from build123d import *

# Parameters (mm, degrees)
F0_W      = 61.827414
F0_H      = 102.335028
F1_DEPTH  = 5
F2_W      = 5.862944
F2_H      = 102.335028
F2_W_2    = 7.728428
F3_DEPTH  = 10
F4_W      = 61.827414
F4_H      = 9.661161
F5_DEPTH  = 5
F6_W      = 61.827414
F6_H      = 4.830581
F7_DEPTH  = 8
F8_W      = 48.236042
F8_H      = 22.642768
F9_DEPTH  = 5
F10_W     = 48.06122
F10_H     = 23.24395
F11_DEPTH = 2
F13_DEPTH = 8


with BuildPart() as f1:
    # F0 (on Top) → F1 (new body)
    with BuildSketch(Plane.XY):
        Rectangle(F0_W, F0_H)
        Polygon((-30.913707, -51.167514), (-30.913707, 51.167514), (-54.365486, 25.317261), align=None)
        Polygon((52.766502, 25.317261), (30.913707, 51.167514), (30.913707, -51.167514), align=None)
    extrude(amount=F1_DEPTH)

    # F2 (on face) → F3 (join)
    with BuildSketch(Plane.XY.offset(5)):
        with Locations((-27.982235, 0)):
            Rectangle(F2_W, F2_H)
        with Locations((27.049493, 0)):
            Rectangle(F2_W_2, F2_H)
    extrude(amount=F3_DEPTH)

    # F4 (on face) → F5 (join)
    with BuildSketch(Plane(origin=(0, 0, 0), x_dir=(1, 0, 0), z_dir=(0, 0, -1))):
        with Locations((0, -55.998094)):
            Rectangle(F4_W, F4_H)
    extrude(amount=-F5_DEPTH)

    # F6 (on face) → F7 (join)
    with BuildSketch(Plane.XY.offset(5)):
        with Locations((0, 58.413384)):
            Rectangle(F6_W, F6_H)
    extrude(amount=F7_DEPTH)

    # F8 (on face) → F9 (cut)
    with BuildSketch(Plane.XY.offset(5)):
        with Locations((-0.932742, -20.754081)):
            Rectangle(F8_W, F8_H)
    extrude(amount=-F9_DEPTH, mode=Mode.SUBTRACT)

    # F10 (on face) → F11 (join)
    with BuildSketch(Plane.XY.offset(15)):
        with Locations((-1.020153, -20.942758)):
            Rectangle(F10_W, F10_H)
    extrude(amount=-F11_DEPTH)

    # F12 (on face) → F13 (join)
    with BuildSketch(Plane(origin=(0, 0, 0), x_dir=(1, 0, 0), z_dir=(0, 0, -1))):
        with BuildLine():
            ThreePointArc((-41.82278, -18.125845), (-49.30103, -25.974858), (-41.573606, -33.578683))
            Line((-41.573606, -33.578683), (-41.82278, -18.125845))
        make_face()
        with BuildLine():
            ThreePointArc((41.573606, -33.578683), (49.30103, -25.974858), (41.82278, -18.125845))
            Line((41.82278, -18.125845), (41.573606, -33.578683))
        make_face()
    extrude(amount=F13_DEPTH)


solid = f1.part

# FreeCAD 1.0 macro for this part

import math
import FreeCAD as App
import Part
import Sketcher

V = App.Vector
Q = App.Units.Quantity

doc = App.newDocument("Part")
body = doc.addObject("PartDesign::Body", "Body")

sketch1 = body.newObject("Sketcher::SketchObject", "Sketch")
sketch1.AttachmentSupport = (doc.getObject("XY_Plane"), [""])
sketch1.MapMode = "FlatFace"
sketch1.addGeometry(Part.LineSegment(V(-31, -51, 0), V(31, -51, 0)), False)
sketch1.addGeometry(Part.LineSegment(V(31, -51, 0), V(53, 25, 0)), False)
sketch1.addGeometry(Part.LineSegment(V(53, 25, 0), V(31, 51, 0)), False)
sketch1.addGeometry(Part.LineSegment(V(31, 51, 0), V(-31, 51, 0)), False)
sketch1.addGeometry(Part.LineSegment(V(-31, 51, 0), V(-54, 25, 0)), False)
sketch1.addGeometry(Part.LineSegment(V(-54, 25, 0), V(-31, -51, 0)), False)
sketch1.addConstraint(Sketcher.Constraint("Coincident", 0, 2, 1, 1))
sketch1.addConstraint(Sketcher.Constraint("Coincident", 1, 2, 2, 1))
sketch1.addConstraint(Sketcher.Constraint("Coincident", 2, 2, 3, 1))
sketch1.addConstraint(Sketcher.Constraint("Coincident", 3, 2, 4, 1))
sketch1.addConstraint(Sketcher.Constraint("Coincident", 4, 2, 5, 1))
sketch1.addConstraint(Sketcher.Constraint("Coincident", 5, 2, 0, 1))
sketch1.addConstraint(Sketcher.Constraint("Horizontal", 0))
sketch1.addConstraint(Sketcher.Constraint("Horizontal", 3))
sketch1.addConstraint(Sketcher.Constraint("Symmetric", 0, 2, 3, 2, -1, 1))
sketch1.addConstraint(Sketcher.Constraint("Horizontal", 1, 2, 4, 2))
sketch1.addConstraint(Sketcher.Constraint("Vertical", 0, 2, 2, 2))
sketch1.addConstraint(Sketcher.Constraint("Vertical", 3, 2, 5, 2))
sketch1.addConstraint(Sketcher.Constraint("Distance", 4, Q("34.90303 mm")))
sketch1.addConstraint(Sketcher.Constraint("DistanceX", 0, 1, 0, 2, Q("61.827414 mm")))
sketch1.addConstraint(Sketcher.Constraint("DistanceY", -1, 1, 1, 2, Q("25.317261 mm")))
sketch1.addConstraint(Sketcher.Constraint("DistanceX", 3, 2, 1, 2, Q("83.680209 mm")))
sketch1.addConstraint(Sketcher.Constraint("DistanceX", 4, 2, 3, 2, Q("23.451779 mm")))
pad1 = body.newObject("PartDesign::Pad", "Pad")
pad1.Profile = sketch1
pad1.Length = 5

sketch2 = body.newObject("Sketcher::SketchObject", "Sketch001")
sketch2.AttachmentSupport = (doc.getObject("XY_Plane"), [""])
sketch2.MapMode = "FlatFace"
sketch2.AttachmentOffset = App.Placement(V(0, 0, 5), App.Rotation())
sketch2.addGeometry(Part.LineSegment(V(-31, 51, 0), V(-31, -51, 0)), False)
sketch2.addGeometry(Part.LineSegment(V(-31, -51, 0), V(-25, -51, 0)), False)
sketch2.addGeometry(Part.LineSegment(V(-25, -51, 0), V(-25, 51, 0)), False)
sketch2.addGeometry(Part.LineSegment(V(-25, 51, 0), V(-31, 51, 0)), False)
sketch2.addGeometry(Part.LineSegment(V(23, 51, 0), V(23, -51, 0)), False)
sketch2.addGeometry(Part.LineSegment(V(23, -51, 0), V(31, -51, 0)), False)
sketch2.addGeometry(Part.LineSegment(V(31, -51, 0), V(31, 51, 0)), False)
sketch2.addGeometry(Part.LineSegment(V(31, 51, 0), V(23, 51, 0)), False)
sketch2.addConstraint(Sketcher.Constraint("Coincident", 0, 2, 1, 1))
sketch2.addConstraint(Sketcher.Constraint("Coincident", 1, 2, 2, 1))
sketch2.addConstraint(Sketcher.Constraint("Coincident", 2, 2, 3, 1))
sketch2.addConstraint(Sketcher.Constraint("Coincident", 3, 2, 0, 1))
sketch2.addConstraint(Sketcher.Constraint("Coincident", 4, 2, 5, 1))
sketch2.addConstraint(Sketcher.Constraint("Coincident", 5, 2, 6, 1))
sketch2.addConstraint(Sketcher.Constraint("Coincident", 6, 2, 7, 1))
sketch2.addConstraint(Sketcher.Constraint("Coincident", 7, 2, 4, 1))
sketch2.addConstraint(Sketcher.Constraint("Vertical", 0))
sketch2.addConstraint(Sketcher.Constraint("Horizontal", 1))
sketch2.addConstraint(Sketcher.Constraint("Vertical", 2))
sketch2.addConstraint(Sketcher.Constraint("Horizontal", 3))
sketch2.addConstraint(Sketcher.Constraint("Vertical", 4))
sketch2.addConstraint(Sketcher.Constraint("Horizontal", 5))
sketch2.addConstraint(Sketcher.Constraint("Vertical", 6))
sketch2.addConstraint(Sketcher.Constraint("Horizontal", 7))
sketch2.addConstraint(Sketcher.Constraint("Symmetric", 3, 2, 5, 2, -1, 1))
sketch2.addConstraint(Sketcher.Constraint("Horizontal", 1, 2, 4, 2))
sketch2.addConstraint(Sketcher.Constraint("Horizontal", 3, 2, 6, 2))
sketch2.addConstraint(Sketcher.Constraint("DistanceX", 1, 1, 1, 2, Q("5.862944 mm")))
sketch2.addConstraint(Sketcher.Constraint("DistanceX", 5, 1, 5, 2, Q("7.728428 mm")))
sketch2.addConstraint(Sketcher.Constraint("DistanceY", 0, 2, 0, 1, Q("102.335028 mm")))
sketch2.addConstraint(Sketcher.Constraint("DistanceX", -1, 1, 4, 2, Q("23.185279 mm")))
pad2 = body.newObject("PartDesign::Pad", "Pad001")
pad2.Profile = sketch2
pad2.Length = 10

sketch3 = body.newObject("Sketcher::SketchObject", "Sketch002")
sketch3.AttachmentSupport = (doc.getObject("XY_Plane"), [""])
sketch3.MapMode = "FlatFace"
sketch3.addGeometry(Part.LineSegment(V(-31, 51, 0), V(-31, 61, 0)), False)
sketch3.addGeometry(Part.LineSegment(V(-31, 61, 0), V(31, 61, 0)), False)
sketch3.addGeometry(Part.LineSegment(V(31, 61, 0), V(31, 51, 0)), False)
sketch3.addGeometry(Part.LineSegment(V(31, 51, 0), V(-31, 51, 0)), False)
sketch3.addConstraint(Sketcher.Constraint("Coincident", 0, 2, 1, 1))
sketch3.addConstraint(Sketcher.Constraint("Coincident", 1, 2, 2, 1))
sketch3.addConstraint(Sketcher.Constraint("Coincident", 2, 2, 3, 1))
sketch3.addConstraint(Sketcher.Constraint("Coincident", 3, 2, 0, 1))
sketch3.addConstraint(Sketcher.Constraint("Vertical", 0))
sketch3.addConstraint(Sketcher.Constraint("Horizontal", 1))
sketch3.addConstraint(Sketcher.Constraint("Vertical", 2))
sketch3.addConstraint(Sketcher.Constraint("Horizontal", 3))
sketch3.addConstraint(Sketcher.Constraint("DistanceY", 0, 1, 0, 2, Q("9.661161 mm")))
sketch3.addConstraint(Sketcher.Constraint("DistanceX", 1, 1, 1, 2, Q("61.827414 mm")))
sketch3.addConstraint(Sketcher.Constraint("DistanceX", 0, 2, -1, 1, Q("30.913707 mm")))
sketch3.addConstraint(Sketcher.Constraint("DistanceY", -1, 1, 0, 2, Q("60.828674 mm")))
pad3 = body.newObject("PartDesign::Pad", "Pad002")
pad3.Profile = sketch3
pad3.Length = 5

sketch4 = body.newObject("Sketcher::SketchObject", "Sketch003")
sketch4.AttachmentSupport = (doc.getObject("XY_Plane"), [""])
sketch4.MapMode = "FlatFace"
sketch4.AttachmentOffset = App.Placement(V(0, 0, 5), App.Rotation())
sketch4.addGeometry(Part.LineSegment(V(-30.9, 60.8, 0), V(-30.9, 56, 0)), False)
sketch4.addGeometry(Part.LineSegment(V(-30.9, 56, 0), V(30.9, 56, 0)), False)
sketch4.addGeometry(Part.LineSegment(V(30.9, 56, 0), V(30.9, 60.8, 0)), False)
sketch4.addGeometry(Part.LineSegment(V(30.9, 60.8, 0), V(-30.9, 60.8, 0)), False)
sketch4.addConstraint(Sketcher.Constraint("Coincident", 0, 2, 1, 1))
sketch4.addConstraint(Sketcher.Constraint("Coincident", 1, 2, 2, 1))
sketch4.addConstraint(Sketcher.Constraint("Coincident", 2, 2, 3, 1))
sketch4.addConstraint(Sketcher.Constraint("Coincident", 3, 2, 0, 1))
sketch4.addConstraint(Sketcher.Constraint("Vertical", 0))
sketch4.addConstraint(Sketcher.Constraint("Horizontal", 1))
sketch4.addConstraint(Sketcher.Constraint("Vertical", 2))
sketch4.addConstraint(Sketcher.Constraint("Horizontal", 3))
sketch4.addConstraint(Sketcher.Constraint("DistanceY", 0, 2, 0, 1, Q("4.830581 mm")))
sketch4.addConstraint(Sketcher.Constraint("DistanceX", 1, 1, 1, 2, Q("61.827414 mm")))
sketch4.addConstraint(Sketcher.Constraint("DistanceX", 0, 2, -1, 1, Q("30.913707 mm")))
sketch4.addConstraint(Sketcher.Constraint("DistanceY", -1, 1, 0, 2, Q("55.998094 mm")))
pad4 = body.newObject("PartDesign::Pad", "Pad003")
pad4.Profile = sketch4
pad4.Length = 8

sketch5 = body.newObject("Sketcher::SketchObject", "Sketch004")
sketch5.AttachmentSupport = (doc.getObject("XY_Plane"), [""])
sketch5.MapMode = "FlatFace"
sketch5.AttachmentOffset = App.Placement(V(0, 0, 5), App.Rotation())
sketch5.addGeometry(Part.LineSegment(V(-25, -9, 0), V(-25, -32, 0)), False)
sketch5.addGeometry(Part.LineSegment(V(-25, -32, 0), V(23, -32, 0)), False)
sketch5.addGeometry(Part.LineSegment(V(23, -32, 0), V(23, -9, 0)), False)
sketch5.addGeometry(Part.LineSegment(V(23, -9, 0), V(-25, -9, 0)), False)
sketch5.addConstraint(Sketcher.Constraint("Coincident", 0, 2, 1, 1))
sketch5.addConstraint(Sketcher.Constraint("Coincident", 1, 2, 2, 1))
sketch5.addConstraint(Sketcher.Constraint("Coincident", 2, 2, 3, 1))
sketch5.addConstraint(Sketcher.Constraint("Coincident", 3, 2, 0, 1))
sketch5.addConstraint(Sketcher.Constraint("Vertical", 0))
sketch5.addConstraint(Sketcher.Constraint("Horizontal", 1))
sketch5.addConstraint(Sketcher.Constraint("Vertical", 2))
sketch5.addConstraint(Sketcher.Constraint("Horizontal", 3))
sketch5.addConstraint(Sketcher.Constraint("DistanceX", 1, 1, 1, 2, Q("48.236042 mm")))
sketch5.addConstraint(Sketcher.Constraint("DistanceY", 0, 2, 0, 1, Q("22.642768 mm")))
sketch5.addConstraint(Sketcher.Constraint("DistanceX", -1, 1, 1, 2, Q("23.185279 mm")))
sketch5.addConstraint(Sketcher.Constraint("DistanceY", 0, 2, -1, 1, Q("32.075465 mm")))
pocket1 = body.newObject("PartDesign::Pocket", "Pocket")
pocket1.Profile = sketch5
pocket1.Length = 5

sketch6 = body.newObject("Sketcher::SketchObject", "Sketch005")
sketch6.AttachmentSupport = (doc.getObject("XY_Plane"), [""])
sketch6.MapMode = "FlatFace"
sketch6.AttachmentOffset = App.Placement(V(0, 0, 15), App.Rotation())
sketch6.addGeometry(Part.LineSegment(V(-25, -9, 0), V(-25, -33, 0)), False)
sketch6.addGeometry(Part.LineSegment(V(-25, -33, 0), V(23, -33, 0)), False)
sketch6.addGeometry(Part.LineSegment(V(23, -33, 0), V(23, -9, 0)), False)
sketch6.addGeometry(Part.LineSegment(V(23, -9, 0), V(-25, -9, 0)), False)
sketch6.addConstraint(Sketcher.Constraint("Coincident", 0, 2, 1, 1))
sketch6.addConstraint(Sketcher.Constraint("Coincident", 1, 2, 2, 1))
sketch6.addConstraint(Sketcher.Constraint("Coincident", 2, 2, 3, 1))
sketch6.addConstraint(Sketcher.Constraint("Coincident", 3, 2, 0, 1))
sketch6.addConstraint(Sketcher.Constraint("Vertical", 0))
sketch6.addConstraint(Sketcher.Constraint("Horizontal", 1))
sketch6.addConstraint(Sketcher.Constraint("Vertical", 2))
sketch6.addConstraint(Sketcher.Constraint("Horizontal", 3))
sketch6.addConstraint(Sketcher.Constraint("DistanceX", 1, 1, 1, 2, Q("48.06122 mm")))
sketch6.addConstraint(Sketcher.Constraint("DistanceY", 0, 2, 0, 1, Q("23.24395 mm")))
sketch6.addConstraint(Sketcher.Constraint("DistanceX", 0, 2, -1, 1, Q("25.050763 mm")))
sketch6.addConstraint(Sketcher.Constraint("DistanceY", 0, 2, -1, 1, Q("32.564733 mm")))
pad5 = body.newObject("PartDesign::Pad", "Pad004")
pad5.Profile = sketch6
pad5.Length = 2
pad5.Reversed = True

sketch7 = body.newObject("Sketcher::SketchObject", "Sketch006")
sketch7.AttachmentSupport = (doc.getObject("XY_Plane"), [""])
sketch7.MapMode = "FlatFace"
sketch7.addGeometry(Part.ArcOfCircle(Part.Circle(V(-41.573607, 25.850255, 0), V(0, 0, 1), 7.728428), math.radians(89.999996), math.radians(268.152398)), False)
sketch7.addGeometry(Part.LineSegment(V(-41.573606, 33.578683, 0), V(-41.82278, 18.125845, 0)), False)
sketch7.addGeometry(Part.ArcOfCircle(Part.Circle(V(41.573607, 25.850255, 0), V(0, 0, 1), 7.728428), math.radians(-88.152398), math.radians(90.000004)), False)
sketch7.addGeometry(Part.LineSegment(V(41.82278, 18.125845, 0), V(41.573606, 33.578683, 0)), False)
sketch7.addConstraint(Sketcher.Constraint("Coincident", 0, 1, 1, 1))
sketch7.addConstraint(Sketcher.Constraint("Coincident", 1, 2, 0, 2))
sketch7.addConstraint(Sketcher.Constraint("Coincident", 2, 1, 3, 1))
sketch7.addConstraint(Sketcher.Constraint("Coincident", 3, 2, 2, 2))
sketch7.addConstraint(Sketcher.Constraint("Equal", 0, 2))
sketch7.addConstraint(Sketcher.Constraint("Symmetric", 0, 3, 2, 3, -2))
sketch7.addConstraint(Sketcher.Constraint("Horizontal", 1, 2, 2, 1))
sketch7.addConstraint(Sketcher.Constraint("Vertical", 2, 3, 3, 2))
sketch7.addConstraint(Sketcher.Constraint("Equal", 1, 3))
sketch7.addConstraint(Sketcher.Constraint("Radius", 0, Q("7.728428 mm")))
sketch7.addConstraint(Sketcher.Constraint("DistanceX", 1, 2, -1, 1, Q("41.82278 mm")))
sketch7.addConstraint(Sketcher.Constraint("DistanceY", 1, 2, 0, 3, Q("7.72441 mm")))
sketch7.addConstraint(Sketcher.Constraint("DistanceY", -1, 1, 0, 3, Q("25.850255 mm")))
pad6 = body.newObject("PartDesign::Pad", "Pad005")
pad6.Profile = sketch7
pad6.Length = 8
pad6.Reversed = True

doc.recompute()
